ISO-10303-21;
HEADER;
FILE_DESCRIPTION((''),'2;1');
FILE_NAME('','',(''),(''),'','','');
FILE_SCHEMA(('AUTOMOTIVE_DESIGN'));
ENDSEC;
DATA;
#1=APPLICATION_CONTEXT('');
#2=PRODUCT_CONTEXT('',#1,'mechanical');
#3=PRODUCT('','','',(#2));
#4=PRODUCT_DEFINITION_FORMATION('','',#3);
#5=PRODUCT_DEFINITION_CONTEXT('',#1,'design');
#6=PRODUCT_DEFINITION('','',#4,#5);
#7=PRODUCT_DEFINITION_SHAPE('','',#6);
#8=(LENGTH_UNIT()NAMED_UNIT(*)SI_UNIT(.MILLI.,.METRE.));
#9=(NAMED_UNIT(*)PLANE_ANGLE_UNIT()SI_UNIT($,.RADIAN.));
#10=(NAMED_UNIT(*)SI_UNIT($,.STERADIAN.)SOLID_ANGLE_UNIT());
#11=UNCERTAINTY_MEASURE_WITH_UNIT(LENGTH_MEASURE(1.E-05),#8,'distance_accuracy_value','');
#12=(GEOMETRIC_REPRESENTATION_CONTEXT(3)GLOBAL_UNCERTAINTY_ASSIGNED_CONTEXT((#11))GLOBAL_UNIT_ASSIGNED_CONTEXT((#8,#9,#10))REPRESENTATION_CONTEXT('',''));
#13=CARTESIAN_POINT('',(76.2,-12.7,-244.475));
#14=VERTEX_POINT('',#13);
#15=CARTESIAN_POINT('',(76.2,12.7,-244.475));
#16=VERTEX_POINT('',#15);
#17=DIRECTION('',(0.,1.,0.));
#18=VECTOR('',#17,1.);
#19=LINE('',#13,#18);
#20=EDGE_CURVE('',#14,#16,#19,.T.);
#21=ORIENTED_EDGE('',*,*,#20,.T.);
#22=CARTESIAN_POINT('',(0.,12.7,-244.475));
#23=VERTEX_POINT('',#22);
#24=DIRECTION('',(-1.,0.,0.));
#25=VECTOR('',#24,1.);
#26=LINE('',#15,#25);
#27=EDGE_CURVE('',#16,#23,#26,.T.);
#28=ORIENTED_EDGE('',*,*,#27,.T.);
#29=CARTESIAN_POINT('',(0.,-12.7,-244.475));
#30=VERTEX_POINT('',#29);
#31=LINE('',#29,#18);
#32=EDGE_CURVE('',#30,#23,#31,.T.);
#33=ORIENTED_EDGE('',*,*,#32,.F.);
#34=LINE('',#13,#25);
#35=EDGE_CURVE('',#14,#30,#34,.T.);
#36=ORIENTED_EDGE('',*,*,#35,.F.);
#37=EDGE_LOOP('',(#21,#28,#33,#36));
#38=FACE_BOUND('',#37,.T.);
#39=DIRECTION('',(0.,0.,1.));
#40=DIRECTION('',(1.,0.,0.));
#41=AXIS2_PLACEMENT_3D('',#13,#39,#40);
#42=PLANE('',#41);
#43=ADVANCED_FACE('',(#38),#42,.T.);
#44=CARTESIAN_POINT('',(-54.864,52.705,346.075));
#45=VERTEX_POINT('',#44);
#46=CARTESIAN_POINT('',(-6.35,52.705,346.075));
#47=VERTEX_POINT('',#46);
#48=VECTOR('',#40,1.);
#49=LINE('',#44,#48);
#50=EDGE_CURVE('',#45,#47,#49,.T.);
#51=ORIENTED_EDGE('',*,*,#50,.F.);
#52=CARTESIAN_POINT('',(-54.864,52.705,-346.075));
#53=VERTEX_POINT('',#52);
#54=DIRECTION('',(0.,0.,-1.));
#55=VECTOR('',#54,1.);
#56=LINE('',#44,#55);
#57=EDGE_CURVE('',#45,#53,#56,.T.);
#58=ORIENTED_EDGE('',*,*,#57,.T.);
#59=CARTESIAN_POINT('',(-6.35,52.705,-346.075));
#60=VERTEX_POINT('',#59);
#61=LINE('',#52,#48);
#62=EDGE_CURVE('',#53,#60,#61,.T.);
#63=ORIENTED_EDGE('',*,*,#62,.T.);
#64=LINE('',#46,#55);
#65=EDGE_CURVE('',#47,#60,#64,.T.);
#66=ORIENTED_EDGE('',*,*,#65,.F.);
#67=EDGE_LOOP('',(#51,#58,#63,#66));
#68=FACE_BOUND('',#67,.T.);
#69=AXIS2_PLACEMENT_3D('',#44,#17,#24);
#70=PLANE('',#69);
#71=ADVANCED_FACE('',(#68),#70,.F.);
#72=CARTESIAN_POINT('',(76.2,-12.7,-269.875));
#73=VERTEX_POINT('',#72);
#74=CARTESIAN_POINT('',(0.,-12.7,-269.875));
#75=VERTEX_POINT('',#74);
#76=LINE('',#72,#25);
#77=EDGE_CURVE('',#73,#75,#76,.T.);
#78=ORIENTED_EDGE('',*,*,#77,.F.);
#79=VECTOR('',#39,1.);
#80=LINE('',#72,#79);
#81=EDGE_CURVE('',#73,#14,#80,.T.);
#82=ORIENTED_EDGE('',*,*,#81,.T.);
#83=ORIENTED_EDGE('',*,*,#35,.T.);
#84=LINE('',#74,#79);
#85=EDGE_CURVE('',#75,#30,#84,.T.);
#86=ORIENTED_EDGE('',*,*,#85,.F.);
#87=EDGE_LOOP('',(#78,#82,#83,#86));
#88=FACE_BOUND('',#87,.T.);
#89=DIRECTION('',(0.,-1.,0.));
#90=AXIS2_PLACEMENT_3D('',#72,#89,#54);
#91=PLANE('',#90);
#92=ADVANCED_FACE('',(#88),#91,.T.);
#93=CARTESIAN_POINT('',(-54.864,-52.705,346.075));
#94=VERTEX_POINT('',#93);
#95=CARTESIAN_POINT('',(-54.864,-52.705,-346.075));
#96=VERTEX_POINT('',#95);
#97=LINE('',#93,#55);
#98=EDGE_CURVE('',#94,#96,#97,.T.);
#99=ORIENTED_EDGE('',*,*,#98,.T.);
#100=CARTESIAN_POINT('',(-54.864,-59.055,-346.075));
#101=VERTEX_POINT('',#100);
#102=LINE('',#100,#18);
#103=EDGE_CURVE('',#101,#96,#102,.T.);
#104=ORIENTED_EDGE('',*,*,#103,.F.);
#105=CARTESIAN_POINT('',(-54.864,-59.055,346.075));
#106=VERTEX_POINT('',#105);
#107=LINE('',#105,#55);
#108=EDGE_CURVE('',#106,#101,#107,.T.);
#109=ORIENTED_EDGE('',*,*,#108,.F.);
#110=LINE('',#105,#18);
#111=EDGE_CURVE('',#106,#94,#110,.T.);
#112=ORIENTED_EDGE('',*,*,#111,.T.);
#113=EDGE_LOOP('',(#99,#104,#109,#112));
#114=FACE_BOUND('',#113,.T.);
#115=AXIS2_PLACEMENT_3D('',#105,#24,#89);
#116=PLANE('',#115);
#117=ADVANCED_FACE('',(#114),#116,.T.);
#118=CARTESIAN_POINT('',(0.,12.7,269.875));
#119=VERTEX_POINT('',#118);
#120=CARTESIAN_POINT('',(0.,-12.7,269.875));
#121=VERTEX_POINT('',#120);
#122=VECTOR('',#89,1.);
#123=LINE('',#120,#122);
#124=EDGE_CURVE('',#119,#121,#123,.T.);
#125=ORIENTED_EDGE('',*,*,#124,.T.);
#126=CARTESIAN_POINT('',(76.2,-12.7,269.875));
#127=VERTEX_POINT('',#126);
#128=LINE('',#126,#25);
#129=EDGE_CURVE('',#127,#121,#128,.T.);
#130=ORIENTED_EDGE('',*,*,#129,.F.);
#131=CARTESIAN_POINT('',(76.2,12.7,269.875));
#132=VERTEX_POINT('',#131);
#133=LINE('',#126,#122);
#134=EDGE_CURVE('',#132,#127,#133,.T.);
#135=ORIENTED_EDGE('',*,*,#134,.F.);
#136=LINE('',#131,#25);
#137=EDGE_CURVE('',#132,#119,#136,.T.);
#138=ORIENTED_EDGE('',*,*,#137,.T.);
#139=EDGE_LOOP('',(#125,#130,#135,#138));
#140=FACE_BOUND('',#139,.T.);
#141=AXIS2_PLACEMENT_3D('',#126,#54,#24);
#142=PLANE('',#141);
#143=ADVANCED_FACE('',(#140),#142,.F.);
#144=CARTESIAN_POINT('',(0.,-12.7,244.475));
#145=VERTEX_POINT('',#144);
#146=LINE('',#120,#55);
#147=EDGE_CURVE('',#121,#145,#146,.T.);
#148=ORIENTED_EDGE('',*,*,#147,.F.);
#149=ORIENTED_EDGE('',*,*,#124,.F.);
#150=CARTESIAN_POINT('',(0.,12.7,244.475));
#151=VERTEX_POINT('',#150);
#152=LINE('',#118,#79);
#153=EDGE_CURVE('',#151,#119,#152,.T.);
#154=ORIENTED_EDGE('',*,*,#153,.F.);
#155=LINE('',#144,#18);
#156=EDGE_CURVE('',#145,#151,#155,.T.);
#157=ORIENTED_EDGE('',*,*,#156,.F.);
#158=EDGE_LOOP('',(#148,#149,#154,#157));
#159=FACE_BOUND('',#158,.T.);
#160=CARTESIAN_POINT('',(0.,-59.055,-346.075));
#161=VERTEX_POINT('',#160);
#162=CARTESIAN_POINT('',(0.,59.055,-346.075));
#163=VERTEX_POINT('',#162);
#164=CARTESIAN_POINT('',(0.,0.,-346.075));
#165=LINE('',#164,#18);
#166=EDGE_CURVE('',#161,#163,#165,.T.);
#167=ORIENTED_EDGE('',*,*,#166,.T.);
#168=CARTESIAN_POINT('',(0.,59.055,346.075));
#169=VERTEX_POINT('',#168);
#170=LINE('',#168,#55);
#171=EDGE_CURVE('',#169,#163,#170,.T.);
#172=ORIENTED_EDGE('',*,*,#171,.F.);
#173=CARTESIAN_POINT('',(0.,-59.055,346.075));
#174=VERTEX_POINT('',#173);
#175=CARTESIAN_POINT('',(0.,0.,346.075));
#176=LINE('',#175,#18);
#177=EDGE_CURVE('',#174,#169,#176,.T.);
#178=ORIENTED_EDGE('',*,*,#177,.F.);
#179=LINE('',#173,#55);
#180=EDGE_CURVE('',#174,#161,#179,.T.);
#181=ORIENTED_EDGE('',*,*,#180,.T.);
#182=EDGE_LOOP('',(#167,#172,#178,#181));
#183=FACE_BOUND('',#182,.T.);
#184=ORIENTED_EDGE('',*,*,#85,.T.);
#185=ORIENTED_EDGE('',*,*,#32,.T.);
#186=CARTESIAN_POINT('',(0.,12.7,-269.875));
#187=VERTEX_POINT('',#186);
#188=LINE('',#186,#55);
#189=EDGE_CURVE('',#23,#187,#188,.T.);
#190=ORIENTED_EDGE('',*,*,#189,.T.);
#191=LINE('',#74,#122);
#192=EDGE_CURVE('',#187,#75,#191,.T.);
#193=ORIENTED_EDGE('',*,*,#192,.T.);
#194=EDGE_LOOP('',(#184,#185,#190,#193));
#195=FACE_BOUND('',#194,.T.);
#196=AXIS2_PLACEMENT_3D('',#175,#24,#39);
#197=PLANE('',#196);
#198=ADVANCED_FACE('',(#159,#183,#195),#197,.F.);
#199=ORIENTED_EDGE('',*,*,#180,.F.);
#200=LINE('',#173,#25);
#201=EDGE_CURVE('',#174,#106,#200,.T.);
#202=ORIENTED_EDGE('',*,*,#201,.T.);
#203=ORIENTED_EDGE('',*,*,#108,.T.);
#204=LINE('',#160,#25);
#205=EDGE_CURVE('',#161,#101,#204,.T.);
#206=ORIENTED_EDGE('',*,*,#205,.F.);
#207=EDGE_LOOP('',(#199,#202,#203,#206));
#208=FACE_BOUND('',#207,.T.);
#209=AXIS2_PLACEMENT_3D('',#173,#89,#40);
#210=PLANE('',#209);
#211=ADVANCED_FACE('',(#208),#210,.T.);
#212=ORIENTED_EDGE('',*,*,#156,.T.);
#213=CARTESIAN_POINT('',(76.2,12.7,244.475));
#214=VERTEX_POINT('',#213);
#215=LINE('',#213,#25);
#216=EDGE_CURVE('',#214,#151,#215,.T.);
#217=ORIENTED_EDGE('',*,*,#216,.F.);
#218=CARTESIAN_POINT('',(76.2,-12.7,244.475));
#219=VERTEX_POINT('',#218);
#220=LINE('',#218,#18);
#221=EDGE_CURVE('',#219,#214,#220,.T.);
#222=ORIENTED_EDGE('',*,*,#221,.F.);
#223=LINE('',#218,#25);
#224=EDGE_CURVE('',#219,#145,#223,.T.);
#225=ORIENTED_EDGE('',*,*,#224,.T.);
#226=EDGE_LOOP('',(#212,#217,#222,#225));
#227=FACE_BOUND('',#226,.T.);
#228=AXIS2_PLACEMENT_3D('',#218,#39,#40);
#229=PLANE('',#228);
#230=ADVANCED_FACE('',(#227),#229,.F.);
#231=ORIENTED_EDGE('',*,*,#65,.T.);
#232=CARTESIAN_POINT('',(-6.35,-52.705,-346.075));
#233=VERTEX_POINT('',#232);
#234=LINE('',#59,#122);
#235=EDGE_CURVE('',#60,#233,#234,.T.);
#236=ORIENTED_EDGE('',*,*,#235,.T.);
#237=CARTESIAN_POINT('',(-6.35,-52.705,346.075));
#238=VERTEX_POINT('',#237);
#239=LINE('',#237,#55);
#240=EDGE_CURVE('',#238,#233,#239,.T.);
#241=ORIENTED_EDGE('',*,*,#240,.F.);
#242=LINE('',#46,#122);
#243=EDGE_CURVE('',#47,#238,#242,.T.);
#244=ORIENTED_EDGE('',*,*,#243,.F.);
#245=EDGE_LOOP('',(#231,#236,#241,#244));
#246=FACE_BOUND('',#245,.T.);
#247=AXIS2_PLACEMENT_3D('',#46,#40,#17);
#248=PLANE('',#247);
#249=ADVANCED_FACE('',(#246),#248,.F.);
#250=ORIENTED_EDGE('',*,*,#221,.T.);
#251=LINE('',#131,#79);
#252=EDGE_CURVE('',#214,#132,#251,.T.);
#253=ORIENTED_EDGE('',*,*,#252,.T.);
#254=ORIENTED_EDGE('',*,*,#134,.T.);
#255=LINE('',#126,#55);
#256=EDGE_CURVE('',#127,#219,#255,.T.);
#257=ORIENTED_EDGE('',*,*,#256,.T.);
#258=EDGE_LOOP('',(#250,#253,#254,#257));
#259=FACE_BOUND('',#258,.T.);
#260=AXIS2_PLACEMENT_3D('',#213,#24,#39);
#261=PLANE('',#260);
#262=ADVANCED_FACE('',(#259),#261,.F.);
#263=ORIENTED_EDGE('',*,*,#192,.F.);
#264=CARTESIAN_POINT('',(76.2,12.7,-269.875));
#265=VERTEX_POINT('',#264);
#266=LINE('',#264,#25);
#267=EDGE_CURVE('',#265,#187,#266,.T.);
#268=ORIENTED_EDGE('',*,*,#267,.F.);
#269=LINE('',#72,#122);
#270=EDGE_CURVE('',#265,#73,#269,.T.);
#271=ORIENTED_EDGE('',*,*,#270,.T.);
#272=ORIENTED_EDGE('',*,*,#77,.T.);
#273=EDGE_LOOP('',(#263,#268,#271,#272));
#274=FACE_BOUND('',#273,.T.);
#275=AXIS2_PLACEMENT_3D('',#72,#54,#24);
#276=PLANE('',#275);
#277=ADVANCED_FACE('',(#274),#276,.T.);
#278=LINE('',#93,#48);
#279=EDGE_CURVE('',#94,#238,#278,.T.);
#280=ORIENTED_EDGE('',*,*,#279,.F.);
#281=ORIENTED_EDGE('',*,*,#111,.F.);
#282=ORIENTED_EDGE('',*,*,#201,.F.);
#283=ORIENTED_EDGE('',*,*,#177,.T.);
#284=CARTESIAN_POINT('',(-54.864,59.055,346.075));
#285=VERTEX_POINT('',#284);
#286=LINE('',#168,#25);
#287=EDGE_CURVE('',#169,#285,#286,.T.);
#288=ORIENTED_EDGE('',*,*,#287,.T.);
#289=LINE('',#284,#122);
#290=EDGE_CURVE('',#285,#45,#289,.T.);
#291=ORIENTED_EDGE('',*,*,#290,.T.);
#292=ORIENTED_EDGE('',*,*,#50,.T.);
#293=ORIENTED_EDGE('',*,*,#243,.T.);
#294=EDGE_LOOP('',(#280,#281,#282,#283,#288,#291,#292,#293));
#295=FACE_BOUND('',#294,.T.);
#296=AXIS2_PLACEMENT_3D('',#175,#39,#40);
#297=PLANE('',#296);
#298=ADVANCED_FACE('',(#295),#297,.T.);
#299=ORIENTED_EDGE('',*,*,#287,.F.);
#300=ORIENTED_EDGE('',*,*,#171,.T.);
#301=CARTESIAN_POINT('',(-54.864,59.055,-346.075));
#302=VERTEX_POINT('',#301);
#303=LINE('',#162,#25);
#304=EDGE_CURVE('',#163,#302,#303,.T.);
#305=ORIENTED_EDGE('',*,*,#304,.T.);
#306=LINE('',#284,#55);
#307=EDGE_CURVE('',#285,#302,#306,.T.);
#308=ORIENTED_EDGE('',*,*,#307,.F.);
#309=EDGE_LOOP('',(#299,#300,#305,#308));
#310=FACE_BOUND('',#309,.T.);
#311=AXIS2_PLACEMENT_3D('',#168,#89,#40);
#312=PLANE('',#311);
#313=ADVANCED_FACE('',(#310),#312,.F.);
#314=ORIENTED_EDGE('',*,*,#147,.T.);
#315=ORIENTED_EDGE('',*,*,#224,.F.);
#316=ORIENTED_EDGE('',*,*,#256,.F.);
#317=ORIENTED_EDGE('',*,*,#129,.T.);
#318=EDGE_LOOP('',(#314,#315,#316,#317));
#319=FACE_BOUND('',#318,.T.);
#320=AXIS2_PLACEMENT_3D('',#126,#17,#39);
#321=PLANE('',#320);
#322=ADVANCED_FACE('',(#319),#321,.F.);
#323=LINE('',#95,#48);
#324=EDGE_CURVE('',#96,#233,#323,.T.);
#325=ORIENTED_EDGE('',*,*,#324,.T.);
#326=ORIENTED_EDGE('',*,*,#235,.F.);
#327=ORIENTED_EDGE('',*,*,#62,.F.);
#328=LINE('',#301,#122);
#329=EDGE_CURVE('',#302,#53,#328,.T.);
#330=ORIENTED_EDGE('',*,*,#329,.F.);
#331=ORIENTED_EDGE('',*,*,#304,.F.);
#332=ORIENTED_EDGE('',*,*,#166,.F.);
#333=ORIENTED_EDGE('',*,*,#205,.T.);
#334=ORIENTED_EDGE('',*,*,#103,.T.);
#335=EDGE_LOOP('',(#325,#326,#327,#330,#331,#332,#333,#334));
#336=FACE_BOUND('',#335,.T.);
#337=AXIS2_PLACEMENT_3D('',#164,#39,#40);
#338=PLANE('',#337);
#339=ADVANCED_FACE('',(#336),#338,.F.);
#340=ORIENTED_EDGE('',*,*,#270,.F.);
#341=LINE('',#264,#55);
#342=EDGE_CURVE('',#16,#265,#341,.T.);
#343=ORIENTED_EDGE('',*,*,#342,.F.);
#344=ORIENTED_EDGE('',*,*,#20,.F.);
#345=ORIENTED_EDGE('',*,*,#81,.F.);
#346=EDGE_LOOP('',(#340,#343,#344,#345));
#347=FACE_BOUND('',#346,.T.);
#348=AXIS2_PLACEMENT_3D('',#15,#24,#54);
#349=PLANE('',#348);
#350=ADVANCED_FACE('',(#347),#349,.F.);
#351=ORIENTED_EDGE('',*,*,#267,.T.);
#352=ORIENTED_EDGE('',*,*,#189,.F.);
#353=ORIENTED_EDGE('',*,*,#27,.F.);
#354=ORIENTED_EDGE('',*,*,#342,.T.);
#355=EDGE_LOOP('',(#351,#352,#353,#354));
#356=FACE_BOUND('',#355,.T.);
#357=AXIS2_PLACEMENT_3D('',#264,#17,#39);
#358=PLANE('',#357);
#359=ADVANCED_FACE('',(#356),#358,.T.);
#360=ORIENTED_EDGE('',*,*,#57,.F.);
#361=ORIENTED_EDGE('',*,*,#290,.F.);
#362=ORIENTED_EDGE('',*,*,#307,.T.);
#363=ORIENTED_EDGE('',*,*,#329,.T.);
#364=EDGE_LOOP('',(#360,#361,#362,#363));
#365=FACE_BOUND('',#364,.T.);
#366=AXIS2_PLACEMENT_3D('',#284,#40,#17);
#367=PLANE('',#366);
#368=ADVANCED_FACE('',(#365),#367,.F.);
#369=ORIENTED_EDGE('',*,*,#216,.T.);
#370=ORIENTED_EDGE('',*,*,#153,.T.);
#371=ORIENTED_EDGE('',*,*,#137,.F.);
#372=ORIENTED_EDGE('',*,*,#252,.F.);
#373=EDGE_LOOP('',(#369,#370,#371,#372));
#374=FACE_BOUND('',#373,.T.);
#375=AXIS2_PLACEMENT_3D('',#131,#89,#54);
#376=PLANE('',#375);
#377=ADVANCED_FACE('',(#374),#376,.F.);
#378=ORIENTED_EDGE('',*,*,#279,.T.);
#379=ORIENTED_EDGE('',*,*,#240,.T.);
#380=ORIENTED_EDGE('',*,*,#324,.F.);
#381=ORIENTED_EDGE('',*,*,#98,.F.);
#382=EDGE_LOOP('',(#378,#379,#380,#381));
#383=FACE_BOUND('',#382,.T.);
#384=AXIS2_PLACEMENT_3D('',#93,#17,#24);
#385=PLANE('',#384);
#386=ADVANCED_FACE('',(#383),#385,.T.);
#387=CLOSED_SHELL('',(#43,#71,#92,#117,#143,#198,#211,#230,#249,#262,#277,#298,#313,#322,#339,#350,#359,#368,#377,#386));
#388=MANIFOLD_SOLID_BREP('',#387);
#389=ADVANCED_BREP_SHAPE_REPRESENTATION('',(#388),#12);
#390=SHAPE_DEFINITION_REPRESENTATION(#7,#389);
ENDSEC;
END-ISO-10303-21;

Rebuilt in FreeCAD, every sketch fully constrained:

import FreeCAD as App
import Part
import Sketcher
Q = App.Units.Quantity

doc = App.newDocument("Part")
body = doc.addObject("PartDesign::Body", "Body")

# Sketch on XY plane
sketch1 = body.newObject("Sketcher::SketchObject", "Sketch")
sketch1.AttachmentSupport = (doc.getObject("XY_Plane"), [""])
sketch1.MapMode = "FlatFace"
sketch1.addGeometry([
    Part.LineSegment(App.Vector(0, 0, 0), App.Vector(0, 59, 0)),  # 0
    Part.LineSegment(App.Vector(0, 59, 0), App.Vector(-55, 59, 0)),  # 1
    Part.LineSegment(App.Vector(-55, 59, 0), App.Vector(-55, 53, 0)),  # 2
    Part.LineSegment(App.Vector(-55, 53, 0), App.Vector(-6, 53, 0)),  # 3
    Part.LineSegment(App.Vector(-6, 53, 0), App.Vector(-6, 0, 0)),  # 4
    Part.LineSegment(App.Vector(-6, 0, 0), App.Vector(0, 0, 0)),  # 5
], False)
sketch1.addConstraint([
    Sketcher.Constraint("Coincident", 0, 2, 1, 1),
    Sketcher.Constraint("Coincident", 1, 2, 2, 1),
    Sketcher.Constraint("Coincident", 2, 2, 3, 1),
    Sketcher.Constraint("Coincident", 3, 2, 4, 1),
    Sketcher.Constraint("Coincident", 4, 2, 5, 1),
    Sketcher.Constraint("Coincident", 5, 2, 0, 1),
    Sketcher.Constraint("Vertical", 0),
    Sketcher.Constraint("Horizontal", 1),
    Sketcher.Constraint("Vertical", 2),
    Sketcher.Constraint("Horizontal", 3),
    Sketcher.Constraint("Vertical", 4),
    Sketcher.Constraint("Horizontal", 5),
    Sketcher.Constraint("Coincident", 5, 2, -1, 1),
    Sketcher.Constraint("Equal", 5, 2),
    Sketcher.Constraint("DistanceX", 1, 2, 1, 1, Q("2.16 in")),
    Sketcher.Constraint("DistanceX", 3, 1, 3, 2, Q("1.91 in")),
    Sketcher.Constraint("DistanceY", 0, 1, 0, 2, Q("2.325 in")),
])
pad1 = body.newObject("PartDesign::Pad", "Pad")
pad1.Profile = sketch1
pad1.Length = Q("27.25 in")
pad1.Midplane = True
doc.recompute()

mirrored = body.newObject("PartDesign::Mirrored", "Mirrored")
mirrored.Originals = [pad1]
mirrored.MirrorPlane = (doc.getObject("XZ_Plane"), [""])
body.Tip = mirrored

# Sketch on YZ plane
sketch2 = body.newObject("Sketcher::SketchObject", "Sketch001")
sketch2.AttachmentSupport = (doc.getObject("YZ_Plane"), [""])
sketch2.MapMode = "FlatFace"
sketch2.addGeometry([
    Part.LineSegment(App.Vector(13, 270, 0), App.Vector(-13, 270, 0)),
    Part.LineSegment(App.Vector(-13, 270, 0), App.Vector(-13, 244, 0)),
    Part.LineSegment(App.Vector(-13, 244, 0), App.Vector(13, 244, 0)),
    Part.LineSegment(App.Vector(13, 244, 0), App.Vector(13, 270, 0)),
], False)
sketch2.addConstraint([
    Sketcher.Constraint("Coincident", 0, 2, 1, 1),
    Sketcher.Constraint("Coincident", 1, 2, 2, 1),
    Sketcher.Constraint("Coincident", 2, 2, 3, 1),
    Sketcher.Constraint("Coincident", 3, 2, 0, 1),
    Sketcher.Constraint("Horizontal", 0),
    Sketcher.Constraint("Vertical", 1),
    Sketcher.Constraint("Horizontal", 2),
    Sketcher.Constraint("Vertical", 3),
    Sketcher.Constraint("Equal", 2, 1),
    Sketcher.Constraint("DistanceX", 0, 2, 0, 1, Q("1 in")),
    Sketcher.Constraint("DistanceX", 0, 2, -1, 1, Q("0.5 in")),
    Sketcher.Constraint("DistanceY", -1, 1, 0, 2, Q("10.625 in")),
])
pad2 = body.newObject("PartDesign::Pad", "Pad001")
pad2.Profile = sketch2
pad2.Length = Q("3 in")
doc.recompute()

mirrored2 = body.newObject("PartDesign::Mirrored", "Mirrored001")
mirrored2.Originals = [pad2]
mirrored2.MirrorPlane = (doc.getObject("XY_Plane"), [""])
body.Tip = mirrored2

doc.recompute()
